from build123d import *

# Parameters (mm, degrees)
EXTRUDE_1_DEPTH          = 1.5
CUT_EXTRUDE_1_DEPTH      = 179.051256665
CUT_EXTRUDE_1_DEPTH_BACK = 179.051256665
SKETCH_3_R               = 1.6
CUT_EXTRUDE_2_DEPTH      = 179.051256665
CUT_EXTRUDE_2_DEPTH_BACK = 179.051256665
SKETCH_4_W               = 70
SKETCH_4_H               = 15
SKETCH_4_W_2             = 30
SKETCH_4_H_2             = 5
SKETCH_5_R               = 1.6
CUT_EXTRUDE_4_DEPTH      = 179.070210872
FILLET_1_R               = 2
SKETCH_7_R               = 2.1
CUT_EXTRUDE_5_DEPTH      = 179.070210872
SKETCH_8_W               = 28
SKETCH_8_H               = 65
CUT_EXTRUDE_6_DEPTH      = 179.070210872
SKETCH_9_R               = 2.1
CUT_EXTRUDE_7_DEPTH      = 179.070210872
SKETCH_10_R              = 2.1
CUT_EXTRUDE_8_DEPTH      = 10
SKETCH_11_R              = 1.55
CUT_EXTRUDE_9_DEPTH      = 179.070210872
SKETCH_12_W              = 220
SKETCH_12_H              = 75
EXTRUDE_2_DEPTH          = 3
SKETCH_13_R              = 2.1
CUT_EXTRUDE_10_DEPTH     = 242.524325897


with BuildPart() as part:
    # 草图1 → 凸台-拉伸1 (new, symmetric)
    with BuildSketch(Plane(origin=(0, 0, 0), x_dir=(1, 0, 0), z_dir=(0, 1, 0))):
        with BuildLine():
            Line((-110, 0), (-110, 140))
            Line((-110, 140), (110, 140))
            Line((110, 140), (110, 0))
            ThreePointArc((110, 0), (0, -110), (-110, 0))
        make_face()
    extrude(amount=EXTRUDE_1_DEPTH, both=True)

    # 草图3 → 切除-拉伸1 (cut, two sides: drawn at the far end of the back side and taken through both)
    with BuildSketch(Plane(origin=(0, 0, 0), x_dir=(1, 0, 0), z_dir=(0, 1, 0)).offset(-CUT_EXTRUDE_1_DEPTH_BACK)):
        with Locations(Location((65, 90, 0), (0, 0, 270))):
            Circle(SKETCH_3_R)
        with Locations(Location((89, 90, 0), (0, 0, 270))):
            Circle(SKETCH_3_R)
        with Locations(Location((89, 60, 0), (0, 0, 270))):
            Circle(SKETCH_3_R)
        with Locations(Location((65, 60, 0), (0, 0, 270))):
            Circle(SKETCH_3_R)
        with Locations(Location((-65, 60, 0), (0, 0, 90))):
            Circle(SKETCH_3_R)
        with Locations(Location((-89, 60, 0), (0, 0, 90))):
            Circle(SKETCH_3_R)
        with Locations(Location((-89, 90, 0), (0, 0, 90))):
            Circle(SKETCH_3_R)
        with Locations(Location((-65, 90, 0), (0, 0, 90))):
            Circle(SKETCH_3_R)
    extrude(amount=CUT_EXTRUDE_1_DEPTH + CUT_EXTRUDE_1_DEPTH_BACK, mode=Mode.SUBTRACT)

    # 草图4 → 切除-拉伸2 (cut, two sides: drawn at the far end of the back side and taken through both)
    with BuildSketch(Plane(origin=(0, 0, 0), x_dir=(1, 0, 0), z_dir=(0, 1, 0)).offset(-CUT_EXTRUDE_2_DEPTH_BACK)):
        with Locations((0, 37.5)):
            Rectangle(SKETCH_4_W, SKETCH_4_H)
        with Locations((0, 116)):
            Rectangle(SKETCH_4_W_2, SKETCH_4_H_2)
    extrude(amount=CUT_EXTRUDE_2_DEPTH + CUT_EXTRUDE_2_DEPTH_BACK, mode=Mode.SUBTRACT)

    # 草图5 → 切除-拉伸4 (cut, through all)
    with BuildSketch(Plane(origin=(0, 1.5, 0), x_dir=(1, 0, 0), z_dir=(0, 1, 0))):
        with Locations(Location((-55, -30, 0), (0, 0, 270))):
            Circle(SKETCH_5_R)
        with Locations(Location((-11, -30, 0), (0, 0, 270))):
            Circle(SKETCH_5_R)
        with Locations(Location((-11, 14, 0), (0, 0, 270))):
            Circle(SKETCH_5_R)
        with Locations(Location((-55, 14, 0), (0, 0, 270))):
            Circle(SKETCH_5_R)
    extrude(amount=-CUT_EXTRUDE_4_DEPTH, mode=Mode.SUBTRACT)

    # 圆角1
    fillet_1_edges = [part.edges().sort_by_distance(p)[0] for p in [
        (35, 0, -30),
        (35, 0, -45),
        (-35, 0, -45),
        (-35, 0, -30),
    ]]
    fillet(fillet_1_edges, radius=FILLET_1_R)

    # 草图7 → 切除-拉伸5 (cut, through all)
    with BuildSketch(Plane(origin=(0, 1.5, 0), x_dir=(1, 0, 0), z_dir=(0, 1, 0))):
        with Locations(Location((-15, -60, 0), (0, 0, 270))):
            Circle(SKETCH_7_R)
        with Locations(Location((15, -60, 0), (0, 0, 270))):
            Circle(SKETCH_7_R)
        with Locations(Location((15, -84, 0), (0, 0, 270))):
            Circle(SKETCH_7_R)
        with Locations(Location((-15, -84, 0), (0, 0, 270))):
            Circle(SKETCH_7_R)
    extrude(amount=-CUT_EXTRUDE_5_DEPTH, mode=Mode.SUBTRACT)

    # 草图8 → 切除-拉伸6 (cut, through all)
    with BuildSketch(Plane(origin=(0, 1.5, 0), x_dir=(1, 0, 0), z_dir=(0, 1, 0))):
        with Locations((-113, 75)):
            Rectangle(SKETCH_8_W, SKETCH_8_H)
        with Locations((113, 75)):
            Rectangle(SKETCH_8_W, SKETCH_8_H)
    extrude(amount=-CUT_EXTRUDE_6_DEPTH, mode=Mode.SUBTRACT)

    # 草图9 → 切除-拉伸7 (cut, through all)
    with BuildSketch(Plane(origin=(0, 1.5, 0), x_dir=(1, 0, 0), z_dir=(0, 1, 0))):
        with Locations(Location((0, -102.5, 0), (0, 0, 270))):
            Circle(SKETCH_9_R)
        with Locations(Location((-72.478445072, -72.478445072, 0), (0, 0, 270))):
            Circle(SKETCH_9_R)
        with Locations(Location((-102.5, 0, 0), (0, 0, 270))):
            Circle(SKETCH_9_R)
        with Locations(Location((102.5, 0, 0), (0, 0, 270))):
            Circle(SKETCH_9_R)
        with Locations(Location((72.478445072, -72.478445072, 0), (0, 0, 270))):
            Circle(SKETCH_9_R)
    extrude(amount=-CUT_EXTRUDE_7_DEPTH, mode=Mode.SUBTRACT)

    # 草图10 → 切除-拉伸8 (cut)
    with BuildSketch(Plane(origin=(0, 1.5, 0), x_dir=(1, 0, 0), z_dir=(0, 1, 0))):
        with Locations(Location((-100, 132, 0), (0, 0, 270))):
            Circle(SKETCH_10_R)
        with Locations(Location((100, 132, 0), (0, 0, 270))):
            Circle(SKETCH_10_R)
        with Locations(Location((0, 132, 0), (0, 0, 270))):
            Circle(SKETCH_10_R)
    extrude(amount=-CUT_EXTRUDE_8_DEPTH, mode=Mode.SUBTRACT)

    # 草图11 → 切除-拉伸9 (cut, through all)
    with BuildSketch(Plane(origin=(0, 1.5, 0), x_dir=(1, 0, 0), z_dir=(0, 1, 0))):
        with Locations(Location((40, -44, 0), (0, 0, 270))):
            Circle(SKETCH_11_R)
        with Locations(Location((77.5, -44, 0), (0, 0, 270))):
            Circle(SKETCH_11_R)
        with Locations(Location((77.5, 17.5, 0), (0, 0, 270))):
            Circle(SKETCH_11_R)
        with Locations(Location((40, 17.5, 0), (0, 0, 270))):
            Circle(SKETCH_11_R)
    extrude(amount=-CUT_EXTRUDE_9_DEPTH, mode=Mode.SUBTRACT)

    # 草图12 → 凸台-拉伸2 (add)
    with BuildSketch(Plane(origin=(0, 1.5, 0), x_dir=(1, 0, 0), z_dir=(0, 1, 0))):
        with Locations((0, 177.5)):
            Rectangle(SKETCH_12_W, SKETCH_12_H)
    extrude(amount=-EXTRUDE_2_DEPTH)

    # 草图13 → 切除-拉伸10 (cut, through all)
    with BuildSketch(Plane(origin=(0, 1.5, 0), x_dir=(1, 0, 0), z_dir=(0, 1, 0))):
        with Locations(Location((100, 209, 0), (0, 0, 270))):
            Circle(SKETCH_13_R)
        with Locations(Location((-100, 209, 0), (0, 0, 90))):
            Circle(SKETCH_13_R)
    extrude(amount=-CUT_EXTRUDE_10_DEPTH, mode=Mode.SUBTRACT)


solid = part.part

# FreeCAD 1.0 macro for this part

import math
import FreeCAD as App
import Part
import Sketcher
Q = App.Units.Quantity


def edges_at(feature, points):
    """Names of the edges that pass closest to the given points."""
    edges = feature.Shape.Edges
    near = lambda p: min(range(len(edges)), key=lambda i: edges[i].distToShape(Part.Vertex(*p))[0])
    return sorted({f"Edge{near(p) + 1}" for p in points})


def add_polygon(sketch, points):
    """Adds a closed chain of lines whose ends are joined by coincident constraints."""
    first, n = sketch.GeometryCount, len(points)
    for a, b in zip(points, points[1:] + points[:1]):
        sketch.addGeometry(Part.LineSegment(App.Vector(*a, 0), App.Vector(*b, 0)), False)
    for i in range(n):
        sketch.addConstraint(Sketcher.Constraint("Coincident", first + i, 2, first + (i + 1) % n, 1))

doc = App.newDocument("Part")
body = doc.addObject("PartDesign::Body", "Body")

# Sketch on XZ plane
sketch1 = doc.addObject("Sketcher::SketchObject", "Sketch")
body.addObject(sketch1)
sketch1.AttachmentSupport = (doc.XZ_Plane, [""])
sketch1.MapMode = "FlatFace"
sketch1.addGeometry(Part.LineSegment(App.Vector(-110, -140, 0), App.Vector(-110, 0, 0)), False)
sketch1.addGeometry(Part.ArcOfCircle(Part.Circle(App.Vector(0, 0, 0), App.Vector(0, 0, 1), 110), math.radians(0), math.radians(180)), False)
sketch1.addGeometry(Part.LineSegment(App.Vector(110, 0, 0), App.Vector(110, -140, 0)), False)
sketch1.addGeometry(Part.LineSegment(App.Vector(110, -140, 0), App.Vector(-110, -140, 0)), False)
sketch1.addConstraint(Sketcher.Constraint("Tangent", 0, 2, 1, 2))
sketch1.addConstraint(Sketcher.Constraint("Tangent", 1, 1, 2, 1))
sketch1.addConstraint(Sketcher.Constraint("Coincident", 2, 2, 3, 1))
sketch1.addConstraint(Sketcher.Constraint("Coincident", 3, 2, 0, 1))
sketch1.addConstraint(Sketcher.Constraint("Vertical", 0))
sketch1.addConstraint(Sketcher.Constraint("Vertical", 2))
sketch1.addConstraint(Sketcher.Constraint("Horizontal", 3))
sketch1.addConstraint(Sketcher.Constraint("Coincident", 1, 3, -1, 1))
sketch1.addConstraint(Sketcher.Constraint("Radius", 1, Q("110 mm")))
sketch1.addConstraint(Sketcher.Constraint("DistanceY", 0, 1, 0, 2, Q("140 mm")))
pad1 = doc.addObject("PartDesign::Pad", "Pad")
body.addObject(pad1)
pad1.Profile = sketch1
pad1.Length = 3
pad1.Midplane = True

# Sketch on XZ plane
sketch2 = doc.addObject("Sketcher::SketchObject", "Sketch001")
body.addObject(sketch2)
sketch2.AttachmentSupport = (doc.XZ_Plane, [""])
sketch2.MapMode = "FlatFace"
sketch2.addGeometry(Part.Circle(App.Vector(65, -90, 0), App.Vector(0, 0, 1), 1.6), False)
sketch2.addGeometry(Part.Circle(App.Vector(89, -90, 0), App.Vector(0, 0, 1), 1.6), False)
sketch2.addGeometry(Part.Circle(App.Vector(89, -60, 0), App.Vector(0, 0, 1), 1.6), False)
sketch2.addGeometry(Part.Circle(App.Vector(65, -60, 0), App.Vector(0, 0, 1), 1.6), False)
sketch2.addGeometry(Part.Circle(App.Vector(-65, -60, 0), App.Vector(0, 0, 1), 1.6), False)
sketch2.addGeometry(Part.Circle(App.Vector(-89, -60, 0), App.Vector(0, 0, 1), 1.6), False)
sketch2.addGeometry(Part.Circle(App.Vector(-89, -90, 0), App.Vector(0, 0, 1), 1.6), False)
sketch2.addGeometry(Part.Circle(App.Vector(-65, -90, 0), App.Vector(0, 0, 1), 1.6), False)
sketch2.addConstraint(Sketcher.Constraint("Equal", 0, 1))
sketch2.addConstraint(Sketcher.Constraint("Equal", 1, 2))
sketch2.addConstraint(Sketcher.Constraint("Equal", 2, 3))
sketch2.addConstraint(Sketcher.Constraint("Equal", 3, 4))
sketch2.addConstraint(Sketcher.Constraint("Equal", 4, 5))
sketch2.addConstraint(Sketcher.Constraint("Equal", 5, 6))
sketch2.addConstraint(Sketcher.Constraint("Equal", 6, 7))
sketch2.addConstraint(Sketcher.Constraint("Symmetric", 3, 3, 4, 3, -2))
sketch2.addConstraint(Sketcher.Constraint("Symmetric", 2, 3, 5, 3, -2))
sketch2.addConstraint(Sketcher.Constraint("Symmetric", 1, 3, 6, 3, -2))
sketch2.addConstraint(Sketcher.Constraint("Symmetric", 0, 3, 7, 3, -2))
sketch2.addConstraint(Sketcher.Constraint("Horizontal", 0, 3, 1, 3))
sketch2.addConstraint(Sketcher.Constraint("Horizontal", 2, 3, 3, 3))
sketch2.addConstraint(Sketcher.Constraint("Vertical", 1, 3, 2, 3))
sketch2.addConstraint(Sketcher.Constraint("Vertical", 0, 3, 3, 3))
sketch2.addConstraint(Sketcher.Constraint("Diameter", 0, Q("3.2 mm")))
sketch2.addConstraint(Sketcher.Constraint("DistanceX", -1, 1, 0, 3, Q("65 mm")))
sketch2.addConstraint(Sketcher.Constraint("DistanceY", 0, 3, -1, 1, Q("90 mm")))
sketch2.addConstraint(Sketcher.Constraint("DistanceX", -1, 1, 1, 3, Q("89 mm")))
sketch2.addConstraint(Sketcher.Constraint("DistanceY", 2, 3, -1, 1, Q("60 mm")))
pocket1 = doc.addObject("PartDesign::Pocket", "Pocket")
body.addObject(pocket1)
pocket1.Profile = sketch2
pocket1.Type = "ThroughAll"
pocket1.Midplane = True

# Sketch on XZ plane
sketch3 = doc.addObject("Sketcher::SketchObject", "Sketch002")
body.addObject(sketch3)
sketch3.AttachmentSupport = (doc.XZ_Plane, [""])
sketch3.MapMode = "FlatFace"
add_polygon(sketch3, [(-35, -45), (-35, -30), (35, -30), (35, -45)])  # lines 0-3
add_polygon(sketch3, [(-15, -118), (-15, -114), (15, -114), (15, -118)])  # lines 4-7
sketch3.addConstraint(Sketcher.Constraint("Vertical", 0))
sketch3.addConstraint(Sketcher.Constraint("Horizontal", 1))
sketch3.addConstraint(Sketcher.Constraint("Vertical", 2))
sketch3.addConstraint(Sketcher.Constraint("Horizontal", 3))
sketch3.addConstraint(Sketcher.Constraint("Vertical", 4))
sketch3.addConstraint(Sketcher.Constraint("Horizontal", 5))
sketch3.addConstraint(Sketcher.Constraint("Vertical", 6))
sketch3.addConstraint(Sketcher.Constraint("Horizontal", 7))
sketch3.addConstraint(Sketcher.Constraint("DistanceX", 1, 1, 1, 2, Q("70 mm")))
sketch3.addConstraint(Sketcher.Constraint("DistanceX", 5, 1, 5, 2, Q("30 mm")))
sketch3.addConstraint(Sketcher.Constraint("DistanceY", 0, 1, 0, 2, Q("15 mm")))
sketch3.addConstraint(Sketcher.Constraint("DistanceY", 4, 1, 4, 2, Q("5 mm")))
sketch3.addConstraint(Sketcher.Constraint("DistanceX", 0, 2, -1, 1, Q("35 mm")))
sketch3.addConstraint(Sketcher.Constraint("DistanceY", 0, 2, -1, 1, Q("30 mm")))
sketch3.addConstraint(Sketcher.Constraint("DistanceX", 4, 2, -1, 1, Q("15 mm")))
sketch3.addConstraint(Sketcher.Constraint("DistanceY", 4, 2, -1, 1, Q("113.5 mm")))
pocket2 = doc.addObject("PartDesign::Pocket", "Pocket001")
body.addObject(pocket2)
pocket2.Profile = sketch3
pocket2.Type = "ThroughAll"
pocket2.Midplane = True

# Sketch on XZ plane
sketch4 = doc.addObject("Sketcher::SketchObject", "Sketch003")
body.addObject(sketch4)
sketch4.AttachmentSupport = (doc.XZ_Plane, [""])
sketch4.MapMode = "FlatFace"
sketch4.AttachmentOffset = App.Placement(App.Vector(0, 0, -1.5), App.Rotation())
sketch4.addGeometry(Part.Circle(App.Vector(-55, 30, 0), App.Vector(0, 0, 1), 1.6), False)
sketch4.addGeometry(Part.Circle(App.Vector(-11, 30, 0), App.Vector(0, 0, 1), 1.6), False)
sketch4.addGeometry(Part.Circle(App.Vector(-11, -14, 0), App.Vector(0, 0, 1), 1.6), False)
sketch4.addGeometry(Part.Circle(App.Vector(-55, -14, 0), App.Vector(0, 0, 1), 1.6), False)
sketch4.addConstraint(Sketcher.Constraint("Equal", 0, 1))
sketch4.addConstraint(Sketcher.Constraint("Equal", 1, 2))
sketch4.addConstraint(Sketcher.Constraint("Equal", 2, 3))
sketch4.addConstraint(Sketcher.Constraint("Horizontal", 0, 3, 1, 3))
sketch4.addConstraint(Sketcher.Constraint("Horizontal", 2, 3, 3, 3))
sketch4.addConstraint(Sketcher.Constraint("Vertical", 1, 3, 2, 3))
sketch4.addConstraint(Sketcher.Constraint("Vertical", 0, 3, 3, 3))
sketch4.addConstraint(Sketcher.Constraint("Diameter", 0, Q("3.2 mm")))
sketch4.addConstraint(Sketcher.Constraint("DistanceX", 0, 3, -1, 1, Q("55 mm")))
sketch4.addConstraint(Sketcher.Constraint("DistanceY", -1, 1, 0, 3, Q("30 mm")))
sketch4.addConstraint(Sketcher.Constraint("DistanceX", 1, 3, -1, 1, Q("11 mm")))
sketch4.addConstraint(Sketcher.Constraint("DistanceY", 2, 3, -1, 1, Q("14 mm")))
pocket3 = doc.addObject("PartDesign::Pocket", "Pocket002")
body.addObject(pocket3)
pocket3.Profile = sketch4
pocket3.Type = "ThroughAll"
pocket3.Reversed = True
doc.recompute()

fillet = doc.addObject("PartDesign::Fillet", "Fillet")
body.addObject(fillet)
fillet.Base = (pocket3, edges_at(pocket3, [
    (35, 0, -30),
    (35, 0, -45),
    (-35, 0, -45),
    (-35, 0, -30),
]))
fillet.Radius = 2

# Sketch on XZ plane
sketch5 = doc.addObject("Sketcher::SketchObject", "Sketch004")
body.addObject(sketch5)
sketch5.AttachmentSupport = (doc.XZ_Plane, [""])
sketch5.MapMode = "FlatFace"
sketch5.AttachmentOffset = App.Placement(App.Vector(0, 0, -1.5), App.Rotation())
sketch5.addGeometry(Part.Circle(App.Vector(-15, 60, 0), App.Vector(0, 0, 1), 2.1), False)
sketch5.addGeometry(Part.Circle(App.Vector(15, 60, 0), App.Vector(0, 0, 1), 2.1), False)
sketch5.addGeometry(Part.Circle(App.Vector(15, 84, 0), App.Vector(0, 0, 1), 2.1), False)
sketch5.addGeometry(Part.Circle(App.Vector(-15, 84, 0), App.Vector(0, 0, 1), 2.1), False)
sketch5.addConstraint(Sketcher.Constraint("Equal", 0, 1))
sketch5.addConstraint(Sketcher.Constraint("Equal", 1, 2))
sketch5.addConstraint(Sketcher.Constraint("Equal", 2, 3))
sketch5.addConstraint(Sketcher.Constraint("Symmetric", 0, 3, 1, 3, -2))
sketch5.addConstraint(Sketcher.Constraint("Symmetric", 2, 3, 3, 3, -2))
sketch5.addConstraint(Sketcher.Constraint("Vertical", 1, 3, 2, 3))
sketch5.addConstraint(Sketcher.Constraint("Diameter", 0, Q("4.2 mm")))
sketch5.addConstraint(Sketcher.Constraint("DistanceX", 0, 3, -1, 1, Q("15 mm")))
sketch5.addConstraint(Sketcher.Constraint("DistanceY", -1, 1, 0, 3, Q("60 mm")))
sketch5.addConstraint(Sketcher.Constraint("DistanceY", -1, 1, 2, 3, Q("84 mm")))
pocket4 = doc.addObject("PartDesign::Pocket", "Pocket003")
body.addObject(pocket4)
pocket4.Profile = sketch5
pocket4.Type = "ThroughAll"
pocket4.Reversed = True

# Sketch on XZ plane
sketch6 = doc.addObject("Sketcher::SketchObject", "Sketch005")
body.addObject(sketch6)
sketch6.AttachmentSupport = (doc.XZ_Plane, [""])
sketch6.MapMode = "FlatFace"
sketch6.AttachmentOffset = App.Placement(App.Vector(0, 0, -1.5), App.Rotation())
add_polygon(sketch6, [(-127, -108), (-127, -42), (-99, -42), (-99, -108)])  # lines 0-3
add_polygon(sketch6, [(99, -108), (99, -42), (127, -42), (127, -108)])  # lines 4-7
sketch6.addConstraint(Sketcher.Constraint("Vertical", 0))
sketch6.addConstraint(Sketcher.Constraint("Horizontal", 1))
sketch6.addConstraint(Sketcher.Constraint("Vertical", 2))
sketch6.addConstraint(Sketcher.Constraint("Horizontal", 3))
sketch6.addConstraint(Sketcher.Constraint("Vertical", 4))
sketch6.addConstraint(Sketcher.Constraint("Horizontal", 5))
sketch6.addConstraint(Sketcher.Constraint("Vertical", 6))
sketch6.addConstraint(Sketcher.Constraint("Horizontal", 7))
sketch6.addConstraint(Sketcher.Constraint("Symmetric", 1, 2, 4, 2, -2))
sketch6.addConstraint(Sketcher.Constraint("Symmetric", 3, 2, 6, 2, -2))
sketch6.addConstraint(Sketcher.Constraint("DistanceX", 1, 1, 1, 2, Q("28 mm")))
sketch6.addConstraint(Sketcher.Constraint("DistanceY", 0, 1, 0, 2, Q("65 mm")))
sketch6.addConstraint(Sketcher.Constraint("DistanceX", 0, 2, -1, 1, Q("127 mm")))
sketch6.addConstraint(Sketcher.Constraint("DistanceY", 0, 2, -1, 1, Q("42.5 mm")))
pocket5 = doc.addObject("PartDesign::Pocket", "Pocket004")
body.addObject(pocket5)
pocket5.Profile = sketch6
pocket5.Type = "ThroughAll"
pocket5.Reversed = True

# Sketch on XZ plane
sketch7 = doc.addObject("Sketcher::SketchObject", "Sketch006")
body.addObject(sketch7)
sketch7.AttachmentSupport = (doc.XZ_Plane, [""])
sketch7.MapMode = "FlatFace"
sketch7.AttachmentOffset = App.Placement(App.Vector(0, 0, -1.5), App.Rotation())
sketch7.addGeometry(Part.Circle(App.Vector(0, 102.5, 0), App.Vector(0, 0, 1), 2.1), False)
sketch7.addGeometry(Part.Circle(App.Vector(-72.5, 72.5, 0), App.Vector(0, 0, 1), 2.1), False)
sketch7.addGeometry(Part.Circle(App.Vector(-102.5, 0, 0), App.Vector(0, 0, 1), 2.1), False)
sketch7.addGeometry(Part.Circle(App.Vector(102.5, 0, 0), App.Vector(0, 0, 1), 2.1), False)
sketch7.addGeometry(Part.Circle(App.Vector(72.5, 72.5, 0), App.Vector(0, 0, 1), 2.1), False)
sketch7.addConstraint(Sketcher.Constraint("Equal", 0, 1))
sketch7.addConstraint(Sketcher.Constraint("Equal", 1, 2))
sketch7.addConstraint(Sketcher.Constraint("Equal", 2, 3))
sketch7.addConstraint(Sketcher.Constraint("Equal", 3, 4))
sketch7.addConstraint(Sketcher.Constraint("Symmetric", 2, 3, 3, 3, -1, 1))
sketch7.addConstraint(Sketcher.Constraint("Symmetric", 1, 3, 4, 3, -2))
sketch7.addConstraint(Sketcher.Constraint("PointOnObject", 0, 3, -2))
sketch7.addConstraint(Sketcher.Constraint("PointOnObject", 2, 3, -1))
sketch7.addConstraint(Sketcher.Constraint("Diameter", 0, Q("4.2 mm")))
sketch7.addConstraint(Sketcher.Constraint("DistanceX", 2, 3, 3, 3, Q("205 mm")))
sketch7.addConstraint(Sketcher.Constraint("DistanceY", -1, 1, 0, 3, Q("102.5 mm")))
sketch7.addConstraint(Sketcher.Constraint("DistanceX", 1, 3, 4, 3, Q("144.95689 mm")))
sketch7.addConstraint(Sketcher.Constraint("DistanceY", -1, 1, 1, 3, Q("72.478445 mm")))
pocket6 = doc.addObject("PartDesign::Pocket", "Pocket005")
body.addObject(pocket6)
pocket6.Profile = sketch7
pocket6.Type = "ThroughAll"
pocket6.Reversed = True

# Sketch on XZ plane
sketch8 = doc.addObject("Sketcher::SketchObject", "Sketch007")
body.addObject(sketch8)
sketch8.AttachmentSupport = (doc.XZ_Plane, [""])
sketch8.MapMode = "FlatFace"
sketch8.AttachmentOffset = App.Placement(App.Vector(0, 0, -1.5), App.Rotation())
sketch8.addGeometry(Part.Circle(App.Vector(-100, -132, 0), App.Vector(0, 0, 1), 2.1), False)
sketch8.addGeometry(Part.Circle(App.Vector(100, -132, 0), App.Vector(0, 0, 1), 2.1), False)
sketch8.addGeometry(Part.Circle(App.Vector(0, -132, 0), App.Vector(0, 0, 1), 2.1), False)
sketch8.addConstraint(Sketcher.Constraint("Equal", 0, 1))
sketch8.addConstraint(Sketcher.Constraint("Equal", 1, 2))
sketch8.addConstraint(Sketcher.Constraint("Symmetric", 0, 3, 1, 3, -2))
sketch8.addConstraint(Sketcher.Constraint("PointOnObject", 2, 3, -2))
sketch8.addConstraint(Sketcher.Constraint("Horizontal", 1, 3, 2, 3))
sketch8.addConstraint(Sketcher.Constraint("Diameter", 0, Q("4.2 mm")))
sketch8.addConstraint(Sketcher.Constraint("DistanceX", 0, 3, -1, 1, Q("100 mm")))
sketch8.addConstraint(Sketcher.Constraint("DistanceY", 0, 3, -1, 1, Q("132 mm")))
pocket7 = doc.addObject("PartDesign::Pocket", "Pocket006")
body.addObject(pocket7)
pocket7.Profile = sketch8
pocket7.Length = 10
pocket7.Reversed = True

# Sketch on XZ plane
sketch9 = doc.addObject("Sketcher::SketchObject", "Sketch008")
body.addObject(sketch9)
sketch9.AttachmentSupport = (doc.XZ_Plane, [""])
sketch9.MapMode = "FlatFace"
sketch9.AttachmentOffset = App.Placement(App.Vector(0, 0, -1.5), App.Rotation())
sketch9.addGeometry(Part.Circle(App.Vector(40, 44, 0), App.Vector(0, 0, 1), 1.6), False)
sketch9.addGeometry(Part.Circle(App.Vector(77.5, 44, 0), App.Vector(0, 0, 1), 1.6), False)
sketch9.addGeometry(Part.Circle(App.Vector(77.5, -17.5, 0), App.Vector(0, 0, 1), 1.6), False)
sketch9.addGeometry(Part.Circle(App.Vector(40, -17.5, 0), App.Vector(0, 0, 1), 1.6), False)
sketch9.addConstraint(Sketcher.Constraint("Equal", 0, 1))
sketch9.addConstraint(Sketcher.Constraint("Equal", 1, 2))
sketch9.addConstraint(Sketcher.Constraint("Equal", 2, 3))
sketch9.addConstraint(Sketcher.Constraint("Horizontal", 0, 3, 1, 3))
sketch9.addConstraint(Sketcher.Constraint("Horizontal", 2, 3, 3, 3))
sketch9.addConstraint(Sketcher.Constraint("Vertical", 1, 3, 2, 3))
sketch9.addConstraint(Sketcher.Constraint("Vertical", 0, 3, 3, 3))
sketch9.addConstraint(Sketcher.Constraint("Diameter", 0, Q("3.1 mm")))
sketch9.addConstraint(Sketcher.Constraint("DistanceX", -1, 1, 0, 3, Q("40 mm")))
sketch9.addConstraint(Sketcher.Constraint("DistanceY", -1, 1, 0, 3, Q("44 mm")))
sketch9.addConstraint(Sketcher.Constraint("DistanceX", -1, 1, 1, 3, Q("77.5 mm")))
sketch9.addConstraint(Sketcher.Constraint("DistanceY", 2, 3, -1, 1, Q("17.5 mm")))
pocket8 = doc.addObject("PartDesign::Pocket", "Pocket007")
body.addObject(pocket8)
pocket8.Profile = sketch9
pocket8.Type = "ThroughAll"
pocket8.Reversed = True

# Sketch on XZ plane
sketch10 = doc.addObject("Sketcher::SketchObject", "Sketch009")
body.addObject(sketch10)
sketch10.AttachmentSupport = (doc.XZ_Plane, [""])
sketch10.MapMode = "FlatFace"
sketch10.AttachmentOffset = App.Placement(App.Vector(0, 0, -1.5), App.Rotation())
add_polygon(sketch10, [(-110, -215), (-110, -140), (110, -140), (110, -215)])  # lines 0-3
sketch10.addConstraint(Sketcher.Constraint("Vertical", 0))
sketch10.addConstraint(Sketcher.Constraint("Horizontal", 1))
sketch10.addConstraint(Sketcher.Constraint("Vertical", 2))
sketch10.addConstraint(Sketcher.Constraint("Horizontal", 3))
sketch10.addConstraint(Sketcher.Constraint("DistanceX", 1, 1, 1, 2, Q("220 mm")))
sketch10.addConstraint(Sketcher.Constraint("DistanceY", 0, 1, 0, 2, Q("75 mm")))
sketch10.addConstraint(Sketcher.Constraint("DistanceX", 0, 2, -1, 1, Q("110 mm")))
sketch10.addConstraint(Sketcher.Constraint("DistanceY", 0, 2, -1, 1, Q("140 mm")))
pad2 = doc.addObject("PartDesign::Pad", "Pad001")
body.addObject(pad2)
pad2.Profile = sketch10
pad2.Length = 3

# Sketch on XZ plane
sketch11 = doc.addObject("Sketcher::SketchObject", "Sketch010")
body.addObject(sketch11)
sketch11.AttachmentSupport = (doc.XZ_Plane, [""])
sketch11.MapMode = "FlatFace"
sketch11.AttachmentOffset = App.Placement(App.Vector(0, 0, -1.5), App.Rotation())
sketch11.addGeometry(Part.Circle(App.Vector(100, -209, 0), App.Vector(0, 0, 1), 2.1), False)
sketch11.addGeometry(Part.Circle(App.Vector(-100, -209, 0), App.Vector(0, 0, 1), 2.1), False)
sketch11.addConstraint(Sketcher.Constraint("Equal", 0, 1))
sketch11.addConstraint(Sketcher.Constraint("Symmetric", 0, 3, 1, 3, -2))
sketch11.addConstraint(Sketcher.Constraint("Diameter", 0, Q("4.2 mm")))
sketch11.addConstraint(Sketcher.Constraint("DistanceX", -1, 1, 0, 3, Q("100 mm")))
sketch11.addConstraint(Sketcher.Constraint("DistanceY", 0, 3, -1, 1, Q("209 mm")))
pocket9 = doc.addObject("PartDesign::Pocket", "Pocket008")
body.addObject(pocket9)
pocket9.Profile = sketch11
pocket9.Type = "ThroughAll"
pocket9.Reversed = True

doc.recompute()
